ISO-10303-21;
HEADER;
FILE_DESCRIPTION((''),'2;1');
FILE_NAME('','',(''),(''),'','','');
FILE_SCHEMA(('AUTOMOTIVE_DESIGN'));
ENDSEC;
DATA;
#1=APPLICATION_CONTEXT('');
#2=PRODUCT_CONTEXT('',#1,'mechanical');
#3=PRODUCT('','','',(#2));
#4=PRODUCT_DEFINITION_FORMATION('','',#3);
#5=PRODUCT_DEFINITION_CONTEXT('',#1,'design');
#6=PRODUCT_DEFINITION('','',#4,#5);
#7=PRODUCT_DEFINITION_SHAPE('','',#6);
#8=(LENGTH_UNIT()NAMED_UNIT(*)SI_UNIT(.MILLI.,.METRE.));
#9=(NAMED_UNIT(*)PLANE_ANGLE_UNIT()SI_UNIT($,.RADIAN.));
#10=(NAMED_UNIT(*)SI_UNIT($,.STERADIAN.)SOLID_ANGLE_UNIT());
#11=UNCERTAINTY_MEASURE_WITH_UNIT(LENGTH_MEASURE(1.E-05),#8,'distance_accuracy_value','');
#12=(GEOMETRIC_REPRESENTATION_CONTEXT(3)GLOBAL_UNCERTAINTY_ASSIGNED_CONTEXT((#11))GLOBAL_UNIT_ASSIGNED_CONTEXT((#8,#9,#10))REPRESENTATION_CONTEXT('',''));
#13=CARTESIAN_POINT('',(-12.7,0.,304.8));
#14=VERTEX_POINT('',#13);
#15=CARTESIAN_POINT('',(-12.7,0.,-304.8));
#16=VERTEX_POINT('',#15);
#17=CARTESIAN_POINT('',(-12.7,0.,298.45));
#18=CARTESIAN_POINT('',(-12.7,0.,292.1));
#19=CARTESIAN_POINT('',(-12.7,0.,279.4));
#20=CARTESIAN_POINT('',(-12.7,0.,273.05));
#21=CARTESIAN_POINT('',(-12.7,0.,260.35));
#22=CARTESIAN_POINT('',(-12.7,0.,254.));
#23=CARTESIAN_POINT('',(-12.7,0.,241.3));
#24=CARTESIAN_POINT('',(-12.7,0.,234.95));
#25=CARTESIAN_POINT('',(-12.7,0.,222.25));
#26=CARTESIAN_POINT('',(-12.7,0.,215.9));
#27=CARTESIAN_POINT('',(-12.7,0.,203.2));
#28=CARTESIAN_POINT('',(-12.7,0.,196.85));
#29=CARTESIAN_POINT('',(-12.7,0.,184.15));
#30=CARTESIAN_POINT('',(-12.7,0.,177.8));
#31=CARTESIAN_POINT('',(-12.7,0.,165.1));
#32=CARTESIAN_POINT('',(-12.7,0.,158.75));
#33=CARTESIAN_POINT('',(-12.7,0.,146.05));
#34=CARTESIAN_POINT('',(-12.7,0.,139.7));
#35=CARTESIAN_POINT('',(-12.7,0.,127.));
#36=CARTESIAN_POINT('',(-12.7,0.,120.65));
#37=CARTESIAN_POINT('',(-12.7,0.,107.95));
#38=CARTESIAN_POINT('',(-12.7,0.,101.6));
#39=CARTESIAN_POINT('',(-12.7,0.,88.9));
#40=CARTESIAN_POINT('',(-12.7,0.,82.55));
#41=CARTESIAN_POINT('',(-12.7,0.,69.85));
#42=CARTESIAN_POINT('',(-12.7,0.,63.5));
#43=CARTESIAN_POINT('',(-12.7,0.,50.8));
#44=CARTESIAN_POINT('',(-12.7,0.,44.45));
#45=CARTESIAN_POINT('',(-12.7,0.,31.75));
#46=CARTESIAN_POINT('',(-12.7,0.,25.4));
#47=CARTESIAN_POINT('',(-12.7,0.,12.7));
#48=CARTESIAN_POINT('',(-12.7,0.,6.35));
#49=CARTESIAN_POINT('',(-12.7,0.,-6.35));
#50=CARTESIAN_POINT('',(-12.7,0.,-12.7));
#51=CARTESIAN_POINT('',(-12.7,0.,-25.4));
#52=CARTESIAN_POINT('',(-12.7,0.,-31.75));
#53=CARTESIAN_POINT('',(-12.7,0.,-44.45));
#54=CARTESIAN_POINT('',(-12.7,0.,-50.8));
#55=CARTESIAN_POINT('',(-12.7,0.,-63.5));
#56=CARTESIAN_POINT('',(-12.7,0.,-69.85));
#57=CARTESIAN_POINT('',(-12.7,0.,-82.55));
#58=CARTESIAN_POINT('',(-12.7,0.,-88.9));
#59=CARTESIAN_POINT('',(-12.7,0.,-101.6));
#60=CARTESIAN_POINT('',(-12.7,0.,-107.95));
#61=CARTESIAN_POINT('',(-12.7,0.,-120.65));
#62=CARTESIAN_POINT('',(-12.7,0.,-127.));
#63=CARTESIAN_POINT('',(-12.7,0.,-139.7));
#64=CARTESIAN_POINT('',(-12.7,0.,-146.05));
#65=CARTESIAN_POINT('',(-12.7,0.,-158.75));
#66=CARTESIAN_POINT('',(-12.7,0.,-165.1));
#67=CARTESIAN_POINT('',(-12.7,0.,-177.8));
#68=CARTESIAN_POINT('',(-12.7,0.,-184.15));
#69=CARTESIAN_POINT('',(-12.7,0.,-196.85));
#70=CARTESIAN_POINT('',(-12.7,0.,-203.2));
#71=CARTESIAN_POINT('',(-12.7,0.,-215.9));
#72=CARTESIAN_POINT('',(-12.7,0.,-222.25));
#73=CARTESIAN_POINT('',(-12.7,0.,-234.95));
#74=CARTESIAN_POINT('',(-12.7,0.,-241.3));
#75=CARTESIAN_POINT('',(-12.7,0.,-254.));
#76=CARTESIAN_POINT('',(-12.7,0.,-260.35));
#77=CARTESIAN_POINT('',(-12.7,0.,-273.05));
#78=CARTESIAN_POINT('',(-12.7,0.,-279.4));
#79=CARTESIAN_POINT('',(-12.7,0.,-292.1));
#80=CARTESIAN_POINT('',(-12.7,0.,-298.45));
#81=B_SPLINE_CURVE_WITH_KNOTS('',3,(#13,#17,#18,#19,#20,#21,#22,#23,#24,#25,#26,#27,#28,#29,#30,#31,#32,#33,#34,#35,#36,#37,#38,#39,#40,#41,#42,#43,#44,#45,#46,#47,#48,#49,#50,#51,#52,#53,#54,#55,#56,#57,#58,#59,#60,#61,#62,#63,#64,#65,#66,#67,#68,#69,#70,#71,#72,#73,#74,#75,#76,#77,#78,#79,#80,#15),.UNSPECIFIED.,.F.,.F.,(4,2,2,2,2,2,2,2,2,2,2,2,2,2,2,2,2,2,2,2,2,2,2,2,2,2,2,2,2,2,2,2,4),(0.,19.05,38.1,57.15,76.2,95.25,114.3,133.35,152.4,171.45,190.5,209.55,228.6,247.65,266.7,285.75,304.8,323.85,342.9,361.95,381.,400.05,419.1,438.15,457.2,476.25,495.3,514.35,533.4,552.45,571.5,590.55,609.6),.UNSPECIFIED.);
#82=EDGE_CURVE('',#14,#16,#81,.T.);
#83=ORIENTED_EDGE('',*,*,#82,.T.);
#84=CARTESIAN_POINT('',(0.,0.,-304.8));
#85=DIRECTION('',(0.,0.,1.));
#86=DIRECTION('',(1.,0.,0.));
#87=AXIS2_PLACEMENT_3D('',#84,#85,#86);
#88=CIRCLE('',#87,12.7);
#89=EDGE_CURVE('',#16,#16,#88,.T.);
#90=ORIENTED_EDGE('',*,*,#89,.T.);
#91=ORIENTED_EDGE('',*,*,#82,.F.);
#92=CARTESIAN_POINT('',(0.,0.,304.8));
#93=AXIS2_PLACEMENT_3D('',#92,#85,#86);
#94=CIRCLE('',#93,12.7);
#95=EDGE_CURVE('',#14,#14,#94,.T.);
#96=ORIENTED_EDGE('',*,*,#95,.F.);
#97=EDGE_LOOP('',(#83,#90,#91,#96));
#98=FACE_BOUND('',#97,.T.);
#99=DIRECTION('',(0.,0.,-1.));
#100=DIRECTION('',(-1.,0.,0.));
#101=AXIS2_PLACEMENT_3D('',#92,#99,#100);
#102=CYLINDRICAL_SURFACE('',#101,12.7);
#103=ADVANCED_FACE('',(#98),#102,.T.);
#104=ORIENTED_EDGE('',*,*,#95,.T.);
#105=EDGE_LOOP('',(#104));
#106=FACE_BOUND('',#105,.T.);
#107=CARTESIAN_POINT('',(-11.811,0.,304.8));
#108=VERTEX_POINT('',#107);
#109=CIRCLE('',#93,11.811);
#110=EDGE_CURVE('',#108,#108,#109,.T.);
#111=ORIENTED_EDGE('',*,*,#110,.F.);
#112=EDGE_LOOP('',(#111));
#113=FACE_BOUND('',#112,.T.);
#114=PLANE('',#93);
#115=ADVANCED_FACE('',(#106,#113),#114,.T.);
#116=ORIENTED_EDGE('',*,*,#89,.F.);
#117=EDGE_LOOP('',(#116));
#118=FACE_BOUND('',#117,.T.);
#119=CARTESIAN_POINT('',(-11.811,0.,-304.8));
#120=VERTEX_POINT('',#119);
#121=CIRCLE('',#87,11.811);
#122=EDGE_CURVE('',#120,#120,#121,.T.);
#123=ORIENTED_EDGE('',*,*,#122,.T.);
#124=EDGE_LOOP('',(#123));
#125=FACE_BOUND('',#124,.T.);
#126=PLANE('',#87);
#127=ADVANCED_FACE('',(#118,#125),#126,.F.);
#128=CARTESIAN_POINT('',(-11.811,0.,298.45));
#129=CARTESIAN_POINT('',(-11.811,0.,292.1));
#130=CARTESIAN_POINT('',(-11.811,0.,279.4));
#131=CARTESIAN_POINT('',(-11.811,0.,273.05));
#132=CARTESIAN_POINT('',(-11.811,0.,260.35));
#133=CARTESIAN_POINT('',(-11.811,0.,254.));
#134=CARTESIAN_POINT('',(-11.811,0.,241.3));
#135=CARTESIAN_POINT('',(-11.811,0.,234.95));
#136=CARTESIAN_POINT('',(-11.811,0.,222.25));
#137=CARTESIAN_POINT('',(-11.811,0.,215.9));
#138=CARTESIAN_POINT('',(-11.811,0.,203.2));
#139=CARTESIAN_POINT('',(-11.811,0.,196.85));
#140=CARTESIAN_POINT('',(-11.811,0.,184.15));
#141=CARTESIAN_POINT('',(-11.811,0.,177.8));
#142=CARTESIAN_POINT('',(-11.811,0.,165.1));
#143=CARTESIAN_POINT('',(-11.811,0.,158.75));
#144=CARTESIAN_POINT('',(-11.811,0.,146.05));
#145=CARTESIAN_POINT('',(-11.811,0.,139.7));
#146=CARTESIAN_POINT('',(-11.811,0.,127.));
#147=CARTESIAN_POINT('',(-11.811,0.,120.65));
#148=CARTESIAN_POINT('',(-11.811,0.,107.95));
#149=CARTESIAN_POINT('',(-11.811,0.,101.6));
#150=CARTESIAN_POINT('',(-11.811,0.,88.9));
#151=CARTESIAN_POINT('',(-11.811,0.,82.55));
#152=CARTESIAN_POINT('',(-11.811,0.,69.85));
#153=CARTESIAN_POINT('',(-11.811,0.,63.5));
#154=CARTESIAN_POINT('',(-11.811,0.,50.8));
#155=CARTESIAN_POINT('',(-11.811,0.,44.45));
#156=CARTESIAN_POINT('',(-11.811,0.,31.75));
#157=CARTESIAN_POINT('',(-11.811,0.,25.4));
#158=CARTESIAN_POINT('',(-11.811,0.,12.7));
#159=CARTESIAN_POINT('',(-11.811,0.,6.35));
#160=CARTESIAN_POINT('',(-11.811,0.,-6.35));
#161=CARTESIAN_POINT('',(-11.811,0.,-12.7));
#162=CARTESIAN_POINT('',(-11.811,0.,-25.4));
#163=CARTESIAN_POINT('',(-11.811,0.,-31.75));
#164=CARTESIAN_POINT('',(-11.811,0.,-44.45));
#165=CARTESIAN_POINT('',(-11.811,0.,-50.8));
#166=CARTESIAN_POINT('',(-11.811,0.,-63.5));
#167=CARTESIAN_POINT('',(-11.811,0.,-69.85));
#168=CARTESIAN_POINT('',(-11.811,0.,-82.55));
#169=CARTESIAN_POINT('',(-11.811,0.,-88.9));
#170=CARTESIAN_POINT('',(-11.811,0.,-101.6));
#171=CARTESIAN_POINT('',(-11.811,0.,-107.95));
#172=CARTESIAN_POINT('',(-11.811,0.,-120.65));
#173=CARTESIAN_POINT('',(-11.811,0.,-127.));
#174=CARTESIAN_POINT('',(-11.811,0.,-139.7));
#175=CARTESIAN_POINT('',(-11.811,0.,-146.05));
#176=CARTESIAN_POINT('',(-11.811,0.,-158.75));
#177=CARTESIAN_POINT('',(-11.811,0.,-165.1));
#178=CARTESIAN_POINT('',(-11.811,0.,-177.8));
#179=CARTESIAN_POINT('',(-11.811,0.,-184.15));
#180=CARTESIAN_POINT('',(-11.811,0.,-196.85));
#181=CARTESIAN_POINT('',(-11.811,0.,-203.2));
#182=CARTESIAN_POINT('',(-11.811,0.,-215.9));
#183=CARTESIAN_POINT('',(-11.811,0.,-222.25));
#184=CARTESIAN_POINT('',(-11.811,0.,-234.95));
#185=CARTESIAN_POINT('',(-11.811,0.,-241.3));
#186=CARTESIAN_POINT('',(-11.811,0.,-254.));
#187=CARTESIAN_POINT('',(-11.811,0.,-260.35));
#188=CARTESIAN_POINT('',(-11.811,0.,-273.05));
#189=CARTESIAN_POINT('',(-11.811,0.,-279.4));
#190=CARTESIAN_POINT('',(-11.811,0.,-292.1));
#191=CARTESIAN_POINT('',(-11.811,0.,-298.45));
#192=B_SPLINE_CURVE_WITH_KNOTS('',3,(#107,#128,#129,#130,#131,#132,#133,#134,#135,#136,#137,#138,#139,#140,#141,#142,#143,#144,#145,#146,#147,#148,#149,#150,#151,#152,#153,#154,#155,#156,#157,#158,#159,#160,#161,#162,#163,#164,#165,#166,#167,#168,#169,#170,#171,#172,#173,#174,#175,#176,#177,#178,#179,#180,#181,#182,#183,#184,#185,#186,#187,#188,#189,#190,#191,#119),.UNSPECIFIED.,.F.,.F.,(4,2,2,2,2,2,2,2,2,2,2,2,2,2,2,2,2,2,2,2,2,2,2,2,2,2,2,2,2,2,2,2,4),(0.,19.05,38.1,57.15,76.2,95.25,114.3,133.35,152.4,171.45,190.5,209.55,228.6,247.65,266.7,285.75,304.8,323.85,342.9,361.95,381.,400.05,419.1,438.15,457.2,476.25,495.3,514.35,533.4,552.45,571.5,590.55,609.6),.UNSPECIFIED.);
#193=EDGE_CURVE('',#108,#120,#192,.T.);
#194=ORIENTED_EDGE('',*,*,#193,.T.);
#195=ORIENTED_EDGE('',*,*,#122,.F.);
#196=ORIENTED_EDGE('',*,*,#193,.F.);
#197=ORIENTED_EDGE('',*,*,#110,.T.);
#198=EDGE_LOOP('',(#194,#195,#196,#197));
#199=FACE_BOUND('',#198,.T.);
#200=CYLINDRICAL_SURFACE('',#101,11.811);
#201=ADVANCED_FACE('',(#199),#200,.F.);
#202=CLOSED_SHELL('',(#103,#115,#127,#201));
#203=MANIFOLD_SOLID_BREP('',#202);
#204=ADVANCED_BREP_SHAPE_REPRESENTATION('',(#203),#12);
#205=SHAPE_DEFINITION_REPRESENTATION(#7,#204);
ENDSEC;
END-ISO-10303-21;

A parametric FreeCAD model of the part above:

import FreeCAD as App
import Part
import Sketcher
from FreeCAD import Vector
Q = App.Units.Quantity

doc = App.newDocument("Part")
params = doc.addObject("Spreadsheet::Sheet", "Params")
for row, (alias, value) in enumerate([
    ("sketch1_diameter", "1 in"),
    ("sketch1_diameter2", "0.93 in"),
    ("pad1_length", "24 in"),
], start=1):
    params.set(f"A{row}", alias)
    params.set(f"B{row}", "=" + value)
    params.setAlias(f"B{row}", alias)

body = doc.addObject("PartDesign::Body", "Body")

# Sketch on XY plane
sketch1 = body.newObject("Sketcher::SketchObject", "Sketch")
sketch1.AttachmentSupport = (doc.getObject("XY_Plane"), [""])
sketch1.MapMode = "FlatFace"
sketch1.addGeometry([
    Part.Circle(Vector(0, 0, 0), Vector(0, 0, 1), 12.7),
    Part.Circle(Vector(0, 0, 0), Vector(0, 0, 1), 11.811),
], False)
sketch1.addConstraint([
    Sketcher.Constraint("Coincident", 0, 3, -1, 1),
    Sketcher.Constraint("Coincident", 1, 3, -1, 1),
    Sketcher.Constraint("Diameter", 0, Q("1 in")),
    Sketcher.Constraint("Diameter", 1, Q("0.93 in")),
])
sketch1.setExpression("Constraints[2]", "Params.sketch1_diameter")
sketch1.setExpression("Constraints[3]", "Params.sketch1_diameter2")
pad1 = body.newObject("PartDesign::Pad", "Pad")
pad1.Profile = sketch1
pad1.setExpression("Length", "Params.pad1_length")
pad1.Midplane = True

doc.recompute()
